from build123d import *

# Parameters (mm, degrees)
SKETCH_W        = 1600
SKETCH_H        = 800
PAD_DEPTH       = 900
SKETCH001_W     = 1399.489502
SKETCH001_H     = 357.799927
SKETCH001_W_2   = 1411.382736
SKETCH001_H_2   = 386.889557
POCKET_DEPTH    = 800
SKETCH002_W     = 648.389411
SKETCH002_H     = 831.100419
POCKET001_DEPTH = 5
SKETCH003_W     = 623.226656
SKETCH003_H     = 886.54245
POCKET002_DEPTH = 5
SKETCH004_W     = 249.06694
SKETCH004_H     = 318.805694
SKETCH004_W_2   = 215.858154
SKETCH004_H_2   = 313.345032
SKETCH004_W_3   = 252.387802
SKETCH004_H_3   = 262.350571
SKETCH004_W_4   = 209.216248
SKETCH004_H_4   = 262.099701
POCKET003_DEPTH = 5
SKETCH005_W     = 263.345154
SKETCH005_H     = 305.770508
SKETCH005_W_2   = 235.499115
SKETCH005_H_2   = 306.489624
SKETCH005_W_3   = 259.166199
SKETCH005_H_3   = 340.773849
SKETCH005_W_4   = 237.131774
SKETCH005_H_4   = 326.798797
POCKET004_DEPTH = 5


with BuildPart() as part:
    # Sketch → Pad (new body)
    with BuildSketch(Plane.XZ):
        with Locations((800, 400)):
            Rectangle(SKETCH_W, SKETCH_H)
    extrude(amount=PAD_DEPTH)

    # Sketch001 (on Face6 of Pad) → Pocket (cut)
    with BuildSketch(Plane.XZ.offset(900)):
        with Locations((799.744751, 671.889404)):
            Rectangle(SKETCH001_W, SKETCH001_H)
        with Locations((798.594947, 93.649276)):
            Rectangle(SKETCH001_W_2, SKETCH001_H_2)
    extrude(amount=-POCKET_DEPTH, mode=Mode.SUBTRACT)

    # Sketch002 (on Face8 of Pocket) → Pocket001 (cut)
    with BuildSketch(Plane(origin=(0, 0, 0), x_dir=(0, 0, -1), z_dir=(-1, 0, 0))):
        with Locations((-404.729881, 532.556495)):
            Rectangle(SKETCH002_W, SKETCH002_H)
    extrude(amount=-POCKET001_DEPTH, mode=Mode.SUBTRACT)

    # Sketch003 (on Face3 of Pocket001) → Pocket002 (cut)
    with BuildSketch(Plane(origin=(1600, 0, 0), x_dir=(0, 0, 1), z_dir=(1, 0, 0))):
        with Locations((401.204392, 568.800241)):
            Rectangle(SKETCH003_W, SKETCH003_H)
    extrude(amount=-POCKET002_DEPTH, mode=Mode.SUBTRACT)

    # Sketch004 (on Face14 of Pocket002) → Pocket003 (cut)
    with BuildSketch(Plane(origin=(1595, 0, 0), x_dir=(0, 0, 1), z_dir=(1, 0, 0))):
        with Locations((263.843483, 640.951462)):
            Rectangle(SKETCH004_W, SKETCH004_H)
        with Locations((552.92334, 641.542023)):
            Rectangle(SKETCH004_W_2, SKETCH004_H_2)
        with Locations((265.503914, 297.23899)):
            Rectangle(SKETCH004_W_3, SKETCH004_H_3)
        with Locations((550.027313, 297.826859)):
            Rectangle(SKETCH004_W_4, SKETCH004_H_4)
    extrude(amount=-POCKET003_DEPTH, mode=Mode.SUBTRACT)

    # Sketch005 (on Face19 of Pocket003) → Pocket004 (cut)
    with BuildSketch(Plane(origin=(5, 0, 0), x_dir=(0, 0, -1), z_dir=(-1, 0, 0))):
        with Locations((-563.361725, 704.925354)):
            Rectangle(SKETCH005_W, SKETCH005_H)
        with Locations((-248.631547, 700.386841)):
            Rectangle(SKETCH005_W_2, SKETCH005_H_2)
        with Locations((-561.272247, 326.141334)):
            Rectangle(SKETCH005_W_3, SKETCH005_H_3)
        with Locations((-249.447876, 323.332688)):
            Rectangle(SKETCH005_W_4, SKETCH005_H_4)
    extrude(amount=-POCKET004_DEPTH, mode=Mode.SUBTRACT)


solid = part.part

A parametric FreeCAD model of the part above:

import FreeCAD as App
import Part
import Sketcher
from FreeCAD import Vector

doc = App.newDocument("Part")
body = doc.addObject("PartDesign::Body", "Body")

sketch1 = doc.addObject("Sketcher::SketchObject", "Sketch")
body.addObject(sketch1)
sketch1.AttachmentSupport = (doc.XZ_Plane, [""])
sketch1.MapMode = "FlatFace"
sketch1.addGeometry(Part.LineSegment(Vector(0, 800, 0), Vector(0, 0, 0)), False)
sketch1.addGeometry(Part.LineSegment(Vector(0, 0, 0), Vector(1600, 0, 0)), False)
sketch1.addGeometry(Part.LineSegment(Vector(1600, 0, 0), Vector(1600, 800, 0)), False)
sketch1.addGeometry(Part.LineSegment(Vector(1600, 800, 0), Vector(0, 800, 0)), False)
sketch1.addConstraint(Sketcher.Constraint("Coincident", 0, 2, 1, 1))
sketch1.addConstraint(Sketcher.Constraint("Coincident", 1, 2, 2, 1))
sketch1.addConstraint(Sketcher.Constraint("Coincident", 2, 2, 3, 1))
sketch1.addConstraint(Sketcher.Constraint("Coincident", 3, 2, 0, 1))
sketch1.addConstraint(Sketcher.Constraint("Vertical", 0))
sketch1.addConstraint(Sketcher.Constraint("Horizontal", 1))
sketch1.addConstraint(Sketcher.Constraint("Vertical", 2))
sketch1.addConstraint(Sketcher.Constraint("Horizontal", 3))
sketch1.addConstraint(Sketcher.Constraint("Coincident", 0, 2, -1, 1))
sketch1.addConstraint(Sketcher.Constraint("DistanceX", 1, 1, 1, 2, 1600.0))
sketch1.addConstraint(Sketcher.Constraint("DistanceY", 0, 2, 0, 1, 800.0))
pad1 = doc.addObject("PartDesign::Pad", "Pad")
body.addObject(pad1)
pad1.Profile = sketch1
pad1.Length = 900

sketch2 = doc.addObject("Sketcher::SketchObject", "Sketch001")
body.addObject(sketch2)
sketch2.AttachmentSupport = (doc.XZ_Plane, [""])
sketch2.MapMode = "FlatFace"
sketch2.AttachmentOffset = App.Placement(Vector(0, 0, 900), App.Rotation())
sketch2.addGeometry(Part.LineSegment(Vector(100, 851, 0), Vector(100, 493, 0)), False)
sketch2.addGeometry(Part.LineSegment(Vector(100, 493, 0), Vector(1499, 493, 0)), False)
sketch2.addGeometry(Part.LineSegment(Vector(1499, 493, 0), Vector(1499, 851, 0)), False)
sketch2.addGeometry(Part.LineSegment(Vector(1499, 851, 0), Vector(100, 851, 0)), False)
sketch2.addGeometry(Part.LineSegment(Vector(93, 287, 0), Vector(93, -100, 0)), False)
sketch2.addGeometry(Part.LineSegment(Vector(93, -100, 0), Vector(1504, -100, 0)), False)
sketch2.addGeometry(Part.LineSegment(Vector(1504, -100, 0), Vector(1504, 287, 0)), False)
sketch2.addGeometry(Part.LineSegment(Vector(1504, 287, 0), Vector(93, 287, 0)), False)
sketch2.addConstraint(Sketcher.Constraint("Coincident", 0, 2, 1, 1))
sketch2.addConstraint(Sketcher.Constraint("Coincident", 1, 2, 2, 1))
sketch2.addConstraint(Sketcher.Constraint("Coincident", 2, 2, 3, 1))
sketch2.addConstraint(Sketcher.Constraint("Coincident", 3, 2, 0, 1))
sketch2.addConstraint(Sketcher.Constraint("Coincident", 4, 2, 5, 1))
sketch2.addConstraint(Sketcher.Constraint("Coincident", 5, 2, 6, 1))
sketch2.addConstraint(Sketcher.Constraint("Coincident", 6, 2, 7, 1))
sketch2.addConstraint(Sketcher.Constraint("Coincident", 7, 2, 4, 1))
sketch2.addConstraint(Sketcher.Constraint("Vertical", 0))
sketch2.addConstraint(Sketcher.Constraint("Horizontal", 1))
sketch2.addConstraint(Sketcher.Constraint("Vertical", 2))
sketch2.addConstraint(Sketcher.Constraint("Horizontal", 3))
sketch2.addConstraint(Sketcher.Constraint("Vertical", 4))
sketch2.addConstraint(Sketcher.Constraint("Horizontal", 5))
sketch2.addConstraint(Sketcher.Constraint("Vertical", 6))
sketch2.addConstraint(Sketcher.Constraint("Horizontal", 7))
sketch2.addConstraint(Sketcher.Constraint("DistanceX", -1, 1, 0, 2, 100.0))
sketch2.addConstraint(Sketcher.Constraint("DistanceX", 1, 1, 1, 2, 1399.489502))
sketch2.addConstraint(Sketcher.Constraint("DistanceX", 5, 1, 5, 2, 1411.382736))
sketch2.addConstraint(Sketcher.Constraint("DistanceY", 0, 2, 0, 1, 357.799927))
sketch2.addConstraint(Sketcher.Constraint("DistanceY", 4, 2, 4, 1, 386.889557))
sketch2.addConstraint(Sketcher.Constraint("DistanceY", -1, 1, 0, 2, 492.989441))
sketch2.addConstraint(Sketcher.Constraint("DistanceX", -1, 1, 4, 2, 92.903579))
sketch2.addConstraint(Sketcher.Constraint("DistanceY", 4, 2, 3, 2, 950.58487))
pocket1 = doc.addObject("PartDesign::Pocket", "Pocket")
body.addObject(pocket1)
pocket1.Profile = sketch2
pocket1.Length = 800

sketch3 = doc.addObject("Sketcher::SketchObject", "Sketch002")
body.addObject(sketch3)
sketch3.AttachmentSupport = (doc.YZ_Plane, [""])
sketch3.MapMode = "FlatFace"
sketch3.addGeometry(Part.LineSegment(Vector(-948, 729, 0), Vector(-117, 729, 0)), False)
sketch3.addGeometry(Part.LineSegment(Vector(-117, 729, 0), Vector(-117, 81, 0)), False)
sketch3.addGeometry(Part.LineSegment(Vector(-117, 81, 0), Vector(-948, 81, 0)), False)
sketch3.addGeometry(Part.LineSegment(Vector(-948, 81, 0), Vector(-948, 729, 0)), False)
sketch3.addConstraint(Sketcher.Constraint("Coincident", 0, 2, 1, 1))
sketch3.addConstraint(Sketcher.Constraint("Coincident", 1, 2, 2, 1))
sketch3.addConstraint(Sketcher.Constraint("Coincident", 2, 2, 3, 1))
sketch3.addConstraint(Sketcher.Constraint("Coincident", 3, 2, 0, 1))
sketch3.addConstraint(Sketcher.Constraint("Horizontal", 0))
sketch3.addConstraint(Sketcher.Constraint("Vertical", 1))
sketch3.addConstraint(Sketcher.Constraint("Horizontal", 2))
sketch3.addConstraint(Sketcher.Constraint("Vertical", 3))
sketch3.addConstraint(Sketcher.Constraint("DistanceX", 0, 1, 0, 2, 831.100419))
sketch3.addConstraint(Sketcher.Constraint("DistanceY", 1, 2, 1, 1, 648.389411))
sketch3.addConstraint(Sketcher.Constraint("DistanceX", 0, 2, -1, 1, 117.006286))
sketch3.addConstraint(Sketcher.Constraint("DistanceY", -1, 1, 0, 2, 728.924587))
pocket2 = doc.addObject("PartDesign::Pocket", "Pocket001")
body.addObject(pocket2)
pocket2.Profile = sketch3
pocket2.Length = 5
pocket2.Reversed = True

sketch4 = doc.addObject("Sketcher::SketchObject", "Sketch003")
body.addObject(sketch4)
sketch4.AttachmentSupport = (doc.YZ_Plane, [""])
sketch4.MapMode = "FlatFace"
sketch4.AttachmentOffset = App.Placement(Vector(0, 0, 1600), App.Rotation())
sketch4.addGeometry(Part.LineSegment(Vector(-1012, 90, 0), Vector(-126, 90, 0)), False)
sketch4.addGeometry(Part.LineSegment(Vector(-126, 90, 0), Vector(-126, 713, 0)), False)
sketch4.addGeometry(Part.LineSegment(Vector(-126, 713, 0), Vector(-1012, 713, 0)), False)
sketch4.addGeometry(Part.LineSegment(Vector(-1012, 713, 0), Vector(-1012, 90, 0)), False)
sketch4.addConstraint(Sketcher.Constraint("Coincident", 0, 2, 1, 1))
sketch4.addConstraint(Sketcher.Constraint("Coincident", 1, 2, 2, 1))
sketch4.addConstraint(Sketcher.Constraint("Coincident", 2, 2, 3, 1))
sketch4.addConstraint(Sketcher.Constraint("Coincident", 3, 2, 0, 1))
sketch4.addConstraint(Sketcher.Constraint("Horizontal", 0))
sketch4.addConstraint(Sketcher.Constraint("Vertical", 1))
sketch4.addConstraint(Sketcher.Constraint("Horizontal", 2))
sketch4.addConstraint(Sketcher.Constraint("Vertical", 3))
sketch4.addConstraint(Sketcher.Constraint("DistanceX", 0, 1, 0, 2, 886.54245))
sketch4.addConstraint(Sketcher.Constraint("DistanceY", 1, 1, 1, 2, 623.226656))
sketch4.addConstraint(Sketcher.Constraint("DistanceY", -1, 1, 1, 2, 712.81772))
sketch4.addConstraint(Sketcher.Constraint("DistanceX", 0, 2, -1, 1, 125.529016))
pocket3 = doc.addObject("PartDesign::Pocket", "Pocket002")
body.addObject(pocket3)
pocket3.Profile = sketch4
pocket3.Length = 5

sketch5 = doc.addObject("Sketcher::SketchObject", "Sketch004")
body.addObject(sketch5)
sketch5.AttachmentSupport = (doc.YZ_Plane, [""])
sketch5.MapMode = "FlatFace"
sketch5.AttachmentOffset = App.Placement(Vector(0, 0, 1595), App.Rotation())
sketch5.addGeometry(Part.LineSegment(Vector(-800, 139, 0), Vector(-482, 139, 0)), False)
sketch5.addGeometry(Part.LineSegment(Vector(-482, 139, 0), Vector(-482, 388, 0)), False)
sketch5.addGeometry(Part.LineSegment(Vector(-482, 388, 0), Vector(-800, 388, 0)), False)
sketch5.addGeometry(Part.LineSegment(Vector(-800, 388, 0), Vector(-800, 139, 0)), False)
sketch5.addGeometry(Part.LineSegment(Vector(-798, 445, 0), Vector(-485, 445, 0)), False)
sketch5.addGeometry(Part.LineSegment(Vector(-485, 445, 0), Vector(-485, 661, 0)), False)
sketch5.addGeometry(Part.LineSegment(Vector(-485, 661, 0), Vector(-798, 661, 0)), False)
sketch5.addGeometry(Part.LineSegment(Vector(-798, 661, 0), Vector(-798, 445, 0)), False)
sketch5.addGeometry(Part.LineSegment(Vector(-428, 139, 0), Vector(-166, 139, 0)), False)
sketch5.addGeometry(Part.LineSegment(Vector(-166, 139, 0), Vector(-166, 392, 0)), False)
sketch5.addGeometry(Part.LineSegment(Vector(-166, 392, 0), Vector(-428, 392, 0)), False)
sketch5.addGeometry(Part.LineSegment(Vector(-428, 392, 0), Vector(-428, 139, 0)), False)
sketch5.addGeometry(Part.LineSegment(Vector(-429, 445, 0), Vector(-167, 445, 0)), False)
sketch5.addGeometry(Part.LineSegment(Vector(-167, 445, 0), Vector(-167, 655, 0)), False)
sketch5.addGeometry(Part.LineSegment(Vector(-167, 655, 0), Vector(-429, 655, 0)), False)
sketch5.addGeometry(Part.LineSegment(Vector(-429, 655, 0), Vector(-429, 445, 0)), False)
sketch5.addConstraint(Sketcher.Constraint("Coincident", 0, 2, 1, 1))
sketch5.addConstraint(Sketcher.Constraint("Coincident", 1, 2, 2, 1))
sketch5.addConstraint(Sketcher.Constraint("Coincident", 2, 2, 3, 1))
sketch5.addConstraint(Sketcher.Constraint("Coincident", 3, 2, 0, 1))
sketch5.addConstraint(Sketcher.Constraint("Coincident", 4, 2, 5, 1))
sketch5.addConstraint(Sketcher.Constraint("Coincident", 5, 2, 6, 1))
sketch5.addConstraint(Sketcher.Constraint("Coincident", 6, 2, 7, 1))
sketch5.addConstraint(Sketcher.Constraint("Coincident", 7, 2, 4, 1))
sketch5.addConstraint(Sketcher.Constraint("Coincident", 8, 2, 9, 1))
sketch5.addConstraint(Sketcher.Constraint("Coincident", 9, 2, 10, 1))
sketch5.addConstraint(Sketcher.Constraint("Coincident", 10, 2, 11, 1))
sketch5.addConstraint(Sketcher.Constraint("Coincident", 11, 2, 8, 1))
sketch5.addConstraint(Sketcher.Constraint("Coincident", 12, 2, 13, 1))
sketch5.addConstraint(Sketcher.Constraint("Coincident", 13, 2, 14, 1))
sketch5.addConstraint(Sketcher.Constraint("Coincident", 14, 2, 15, 1))
sketch5.addConstraint(Sketcher.Constraint("Coincident", 15, 2, 12, 1))
sketch5.addConstraint(Sketcher.Constraint("Horizontal", 0))
sketch5.addConstraint(Sketcher.Constraint("Vertical", 1))
sketch5.addConstraint(Sketcher.Constraint("Horizontal", 2))
sketch5.addConstraint(Sketcher.Constraint("Vertical", 3))
sketch5.addConstraint(Sketcher.Constraint("Horizontal", 4))
sketch5.addConstraint(Sketcher.Constraint("Vertical", 5))
sketch5.addConstraint(Sketcher.Constraint("Horizontal", 6))
sketch5.addConstraint(Sketcher.Constraint("Vertical", 7))
sketch5.addConstraint(Sketcher.Constraint("Horizontal", 8))
sketch5.addConstraint(Sketcher.Constraint("Vertical", 9))
sketch5.addConstraint(Sketcher.Constraint("Horizontal", 10))
sketch5.addConstraint(Sketcher.Constraint("Vertical", 11))
sketch5.addConstraint(Sketcher.Constraint("Horizontal", 12))
sketch5.addConstraint(Sketcher.Constraint("Vertical", 13))
sketch5.addConstraint(Sketcher.Constraint("Horizontal", 14))
sketch5.addConstraint(Sketcher.Constraint("Vertical", 15))
sketch5.addConstraint(Sketcher.Constraint("Horizontal", 3, 2, 8, 2))
sketch5.addConstraint(Sketcher.Constraint("DistanceX", 12, 1, 12, 2, 262.099701))
sketch5.addConstraint(Sketcher.Constraint("DistanceY", 9, 1, 9, 2, 252.387802))
sketch5.addConstraint(Sketcher.Constraint("DistanceX", 4, 1, 4, 2, 313.345032))
sketch5.addConstraint(Sketcher.Constraint("DistanceX", 8, 1, 8, 2, 262.350571))
sketch5.addConstraint(Sketcher.Constraint("DistanceY", 1, 1, 1, 2, 249.06694))
sketch5.addConstraint(Sketcher.Constraint("DistanceY", 13, 1, 13, 2, 209.216248))
sketch5.addConstraint(Sketcher.Constraint("DistanceX", 2, 2, 4, 2, 315.484802))
sketch5.addConstraint(Sketcher.Constraint("DistanceY", 9, 2, 5, 2, 269.154602))
sketch5.addConstraint(Sketcher.Constraint("DistanceX", 4, 2, 12, 2, 318.092499))
sketch5.addConstraint(Sketcher.Constraint("DistanceX", 0, 1, 0, 2, 318.805694))
sketch5.addConstraint(Sketcher.Constraint("DistanceY", 5, 1, 5, 2, 215.858154))
sketch5.addConstraint(Sketcher.Constraint("DistanceX", 2, 2, -1, 1, 800.354309))
sketch5.addConstraint(Sketcher.Constraint("DistanceY", -1, 1, 12, 2, 445.419189))
sketch5.addConstraint(Sketcher.Constraint("DistanceX", 0, 2, 8, 2, 315.48491))
sketch5.addConstraint(Sketcher.Constraint("DistanceY", 13, 2, 5, 2, 6.21698))
pocket4 = doc.addObject("PartDesign::Pocket", "Pocket003")
body.addObject(pocket4)
pocket4.Profile = sketch5
pocket4.Length = 5

sketch6 = doc.addObject("Sketcher::SketchObject", "Sketch005")
body.addObject(sketch6)
sketch6.AttachmentSupport = (doc.YZ_Plane, [""])
sketch6.MapMode = "FlatFace"
sketch6.AttachmentOffset = App.Placement(Vector(0, 0, 5), App.Rotation())
sketch6.addGeometry(Part.LineSegment(Vector(-858, 695, 0), Vector(-552, 695, 0)), False)
sketch6.addGeometry(Part.LineSegment(Vector(-552, 695, 0), Vector(-552, 432, 0)), False)
sketch6.addGeometry(Part.LineSegment(Vector(-552, 432, 0), Vector(-858, 432, 0)), False)
sketch6.addGeometry(Part.LineSegment(Vector(-858, 432, 0), Vector(-858, 695, 0)), False)
sketch6.addGeometry(Part.LineSegment(Vector(-854, 366, 0), Vector(-547, 366, 0)), False)
sketch6.addGeometry(Part.LineSegment(Vector(-547, 366, 0), Vector(-547, 131, 0)), False)
sketch6.addGeometry(Part.LineSegment(Vector(-547, 131, 0), Vector(-854, 131, 0)), False)
sketch6.addGeometry(Part.LineSegment(Vector(-854, 131, 0), Vector(-854, 366, 0)), False)
sketch6.addGeometry(Part.LineSegment(Vector(-497, 691, 0), Vector(-156, 691, 0)), False)
sketch6.addGeometry(Part.LineSegment(Vector(-156, 691, 0), Vector(-156, 432, 0)), False)
sketch6.addGeometry(Part.LineSegment(Vector(-156, 432, 0), Vector(-497, 432, 0)), False)
sketch6.addGeometry(Part.LineSegment(Vector(-497, 432, 0), Vector(-497, 691, 0)), False)
sketch6.addGeometry(Part.LineSegment(Vector(-487, 368, 0), Vector(-160, 368, 0)), False)
sketch6.addGeometry(Part.LineSegment(Vector(-160, 368, 0), Vector(-160, 131, 0)), False)
sketch6.addGeometry(Part.LineSegment(Vector(-160, 131, 0), Vector(-487, 131, 0)), False)
sketch6.addGeometry(Part.LineSegment(Vector(-487, 131, 0), Vector(-487, 368, 0)), False)
sketch6.addConstraint(Sketcher.Constraint("Coincident", 0, 2, 1, 1))
sketch6.addConstraint(Sketcher.Constraint("Coincident", 1, 2, 2, 1))
sketch6.addConstraint(Sketcher.Constraint("Coincident", 2, 2, 3, 1))
sketch6.addConstraint(Sketcher.Constraint("Coincident", 3, 2, 0, 1))
sketch6.addConstraint(Sketcher.Constraint("Coincident", 4, 2, 5, 1))
sketch6.addConstraint(Sketcher.Constraint("Coincident", 5, 2, 6, 1))
sketch6.addConstraint(Sketcher.Constraint("Coincident", 6, 2, 7, 1))
sketch6.addConstraint(Sketcher.Constraint("Coincident", 7, 2, 4, 1))
sketch6.addConstraint(Sketcher.Constraint("Coincident", 8, 2, 9, 1))
sketch6.addConstraint(Sketcher.Constraint("Coincident", 9, 2, 10, 1))
sketch6.addConstraint(Sketcher.Constraint("Coincident", 10, 2, 11, 1))
sketch6.addConstraint(Sketcher.Constraint("Coincident", 11, 2, 8, 1))
sketch6.addConstraint(Sketcher.Constraint("Coincident", 12, 2, 13, 1))
sketch6.addConstraint(Sketcher.Constraint("Coincident", 13, 2, 14, 1))
sketch6.addConstraint(Sketcher.Constraint("Coincident", 14, 2, 15, 1))
sketch6.addConstraint(Sketcher.Constraint("Coincident", 15, 2, 12, 1))
sketch6.addConstraint(Sketcher.Constraint("Horizontal", 0))
sketch6.addConstraint(Sketcher.Constraint("Vertical", 1))
sketch6.addConstraint(Sketcher.Constraint("Horizontal", 2))
sketch6.addConstraint(Sketcher.Constraint("Vertical", 3))
sketch6.addConstraint(Sketcher.Constraint("Horizontal", 4))
sketch6.addConstraint(Sketcher.Constraint("Vertical", 5))
sketch6.addConstraint(Sketcher.Constraint("Horizontal", 6))
sketch6.addConstraint(Sketcher.Constraint("Vertical", 7))
sketch6.addConstraint(Sketcher.Constraint("Horizontal", 8))
sketch6.addConstraint(Sketcher.Constraint("Vertical", 9))
sketch6.addConstraint(Sketcher.Constraint("Horizontal", 10))
sketch6.addConstraint(Sketcher.Constraint("Vertical", 11))
sketch6.addConstraint(Sketcher.Constraint("Horizontal", 12))
sketch6.addConstraint(Sketcher.Constraint("Vertical", 13))
sketch6.addConstraint(Sketcher.Constraint("Horizontal", 14))
sketch6.addConstraint(Sketcher.Constraint("Vertical", 15))
sketch6.addConstraint(Sketcher.Constraint("Horizontal", 2, 2, 9, 2))
sketch6.addConstraint(Sketcher.Constraint("Horizontal", 6, 2, 13, 2))
sketch6.addConstraint(Sketcher.Constraint("DistanceY", 9, 2, 9, 1, 259.166199))
sketch6.addConstraint(Sketcher.Constraint("DistanceX", 8, 1, 8, 2, 340.773849))
sketch6.addConstraint(Sketcher.Constraint("DistanceX", 0, 2, -1, 1, 552.0401))
sketch6.addConstraint(Sketcher.Constraint("DistanceY", -1, 1, 0, 2, 695.034302))
sketch6.addConstraint(Sketcher.Constraint("DistanceX", 3, 2, 8, 2, 702.056198))
sketch6.addConstraint(Sketcher.Constraint("DistanceX", 0, 1, 0, 2, 305.770508))
sketch6.addConstraint(Sketcher.Constraint("DistanceX", 4, 1, 4, 2, 306.489624))
sketch6.addConstraint(Sketcher.Constraint("DistanceX", 12, 1, 12, 2, 326.798797))
sketch6.addConstraint(Sketcher.Constraint("DistanceY", 1, 2, 1, 1, 263.345154))
sketch6.addConstraint(Sketcher.Constraint("DistanceY", 5, 2, 5, 1, 235.499115))
sketch6.addConstraint(Sketcher.Constraint("DistanceY", 13, 2, 13, 1, 237.131774))
sketch6.addConstraint(Sketcher.Constraint("DistanceX", 4, 2, -1, 1, 547.142029))
sketch6.addConstraint(Sketcher.Constraint("DistanceY", -1, 1, 5, 2, 130.88199))
sketch6.addConstraint(Sketcher.Constraint("DistanceX", 12, 2, -1, 1, 159.93329))
pocket5 = doc.addObject("PartDesign::Pocket", "Pocket004")
body.addObject(pocket5)
pocket5.Profile = sketch6
pocket5.Length = 5
pocket5.Reversed = True

doc.recompute()
